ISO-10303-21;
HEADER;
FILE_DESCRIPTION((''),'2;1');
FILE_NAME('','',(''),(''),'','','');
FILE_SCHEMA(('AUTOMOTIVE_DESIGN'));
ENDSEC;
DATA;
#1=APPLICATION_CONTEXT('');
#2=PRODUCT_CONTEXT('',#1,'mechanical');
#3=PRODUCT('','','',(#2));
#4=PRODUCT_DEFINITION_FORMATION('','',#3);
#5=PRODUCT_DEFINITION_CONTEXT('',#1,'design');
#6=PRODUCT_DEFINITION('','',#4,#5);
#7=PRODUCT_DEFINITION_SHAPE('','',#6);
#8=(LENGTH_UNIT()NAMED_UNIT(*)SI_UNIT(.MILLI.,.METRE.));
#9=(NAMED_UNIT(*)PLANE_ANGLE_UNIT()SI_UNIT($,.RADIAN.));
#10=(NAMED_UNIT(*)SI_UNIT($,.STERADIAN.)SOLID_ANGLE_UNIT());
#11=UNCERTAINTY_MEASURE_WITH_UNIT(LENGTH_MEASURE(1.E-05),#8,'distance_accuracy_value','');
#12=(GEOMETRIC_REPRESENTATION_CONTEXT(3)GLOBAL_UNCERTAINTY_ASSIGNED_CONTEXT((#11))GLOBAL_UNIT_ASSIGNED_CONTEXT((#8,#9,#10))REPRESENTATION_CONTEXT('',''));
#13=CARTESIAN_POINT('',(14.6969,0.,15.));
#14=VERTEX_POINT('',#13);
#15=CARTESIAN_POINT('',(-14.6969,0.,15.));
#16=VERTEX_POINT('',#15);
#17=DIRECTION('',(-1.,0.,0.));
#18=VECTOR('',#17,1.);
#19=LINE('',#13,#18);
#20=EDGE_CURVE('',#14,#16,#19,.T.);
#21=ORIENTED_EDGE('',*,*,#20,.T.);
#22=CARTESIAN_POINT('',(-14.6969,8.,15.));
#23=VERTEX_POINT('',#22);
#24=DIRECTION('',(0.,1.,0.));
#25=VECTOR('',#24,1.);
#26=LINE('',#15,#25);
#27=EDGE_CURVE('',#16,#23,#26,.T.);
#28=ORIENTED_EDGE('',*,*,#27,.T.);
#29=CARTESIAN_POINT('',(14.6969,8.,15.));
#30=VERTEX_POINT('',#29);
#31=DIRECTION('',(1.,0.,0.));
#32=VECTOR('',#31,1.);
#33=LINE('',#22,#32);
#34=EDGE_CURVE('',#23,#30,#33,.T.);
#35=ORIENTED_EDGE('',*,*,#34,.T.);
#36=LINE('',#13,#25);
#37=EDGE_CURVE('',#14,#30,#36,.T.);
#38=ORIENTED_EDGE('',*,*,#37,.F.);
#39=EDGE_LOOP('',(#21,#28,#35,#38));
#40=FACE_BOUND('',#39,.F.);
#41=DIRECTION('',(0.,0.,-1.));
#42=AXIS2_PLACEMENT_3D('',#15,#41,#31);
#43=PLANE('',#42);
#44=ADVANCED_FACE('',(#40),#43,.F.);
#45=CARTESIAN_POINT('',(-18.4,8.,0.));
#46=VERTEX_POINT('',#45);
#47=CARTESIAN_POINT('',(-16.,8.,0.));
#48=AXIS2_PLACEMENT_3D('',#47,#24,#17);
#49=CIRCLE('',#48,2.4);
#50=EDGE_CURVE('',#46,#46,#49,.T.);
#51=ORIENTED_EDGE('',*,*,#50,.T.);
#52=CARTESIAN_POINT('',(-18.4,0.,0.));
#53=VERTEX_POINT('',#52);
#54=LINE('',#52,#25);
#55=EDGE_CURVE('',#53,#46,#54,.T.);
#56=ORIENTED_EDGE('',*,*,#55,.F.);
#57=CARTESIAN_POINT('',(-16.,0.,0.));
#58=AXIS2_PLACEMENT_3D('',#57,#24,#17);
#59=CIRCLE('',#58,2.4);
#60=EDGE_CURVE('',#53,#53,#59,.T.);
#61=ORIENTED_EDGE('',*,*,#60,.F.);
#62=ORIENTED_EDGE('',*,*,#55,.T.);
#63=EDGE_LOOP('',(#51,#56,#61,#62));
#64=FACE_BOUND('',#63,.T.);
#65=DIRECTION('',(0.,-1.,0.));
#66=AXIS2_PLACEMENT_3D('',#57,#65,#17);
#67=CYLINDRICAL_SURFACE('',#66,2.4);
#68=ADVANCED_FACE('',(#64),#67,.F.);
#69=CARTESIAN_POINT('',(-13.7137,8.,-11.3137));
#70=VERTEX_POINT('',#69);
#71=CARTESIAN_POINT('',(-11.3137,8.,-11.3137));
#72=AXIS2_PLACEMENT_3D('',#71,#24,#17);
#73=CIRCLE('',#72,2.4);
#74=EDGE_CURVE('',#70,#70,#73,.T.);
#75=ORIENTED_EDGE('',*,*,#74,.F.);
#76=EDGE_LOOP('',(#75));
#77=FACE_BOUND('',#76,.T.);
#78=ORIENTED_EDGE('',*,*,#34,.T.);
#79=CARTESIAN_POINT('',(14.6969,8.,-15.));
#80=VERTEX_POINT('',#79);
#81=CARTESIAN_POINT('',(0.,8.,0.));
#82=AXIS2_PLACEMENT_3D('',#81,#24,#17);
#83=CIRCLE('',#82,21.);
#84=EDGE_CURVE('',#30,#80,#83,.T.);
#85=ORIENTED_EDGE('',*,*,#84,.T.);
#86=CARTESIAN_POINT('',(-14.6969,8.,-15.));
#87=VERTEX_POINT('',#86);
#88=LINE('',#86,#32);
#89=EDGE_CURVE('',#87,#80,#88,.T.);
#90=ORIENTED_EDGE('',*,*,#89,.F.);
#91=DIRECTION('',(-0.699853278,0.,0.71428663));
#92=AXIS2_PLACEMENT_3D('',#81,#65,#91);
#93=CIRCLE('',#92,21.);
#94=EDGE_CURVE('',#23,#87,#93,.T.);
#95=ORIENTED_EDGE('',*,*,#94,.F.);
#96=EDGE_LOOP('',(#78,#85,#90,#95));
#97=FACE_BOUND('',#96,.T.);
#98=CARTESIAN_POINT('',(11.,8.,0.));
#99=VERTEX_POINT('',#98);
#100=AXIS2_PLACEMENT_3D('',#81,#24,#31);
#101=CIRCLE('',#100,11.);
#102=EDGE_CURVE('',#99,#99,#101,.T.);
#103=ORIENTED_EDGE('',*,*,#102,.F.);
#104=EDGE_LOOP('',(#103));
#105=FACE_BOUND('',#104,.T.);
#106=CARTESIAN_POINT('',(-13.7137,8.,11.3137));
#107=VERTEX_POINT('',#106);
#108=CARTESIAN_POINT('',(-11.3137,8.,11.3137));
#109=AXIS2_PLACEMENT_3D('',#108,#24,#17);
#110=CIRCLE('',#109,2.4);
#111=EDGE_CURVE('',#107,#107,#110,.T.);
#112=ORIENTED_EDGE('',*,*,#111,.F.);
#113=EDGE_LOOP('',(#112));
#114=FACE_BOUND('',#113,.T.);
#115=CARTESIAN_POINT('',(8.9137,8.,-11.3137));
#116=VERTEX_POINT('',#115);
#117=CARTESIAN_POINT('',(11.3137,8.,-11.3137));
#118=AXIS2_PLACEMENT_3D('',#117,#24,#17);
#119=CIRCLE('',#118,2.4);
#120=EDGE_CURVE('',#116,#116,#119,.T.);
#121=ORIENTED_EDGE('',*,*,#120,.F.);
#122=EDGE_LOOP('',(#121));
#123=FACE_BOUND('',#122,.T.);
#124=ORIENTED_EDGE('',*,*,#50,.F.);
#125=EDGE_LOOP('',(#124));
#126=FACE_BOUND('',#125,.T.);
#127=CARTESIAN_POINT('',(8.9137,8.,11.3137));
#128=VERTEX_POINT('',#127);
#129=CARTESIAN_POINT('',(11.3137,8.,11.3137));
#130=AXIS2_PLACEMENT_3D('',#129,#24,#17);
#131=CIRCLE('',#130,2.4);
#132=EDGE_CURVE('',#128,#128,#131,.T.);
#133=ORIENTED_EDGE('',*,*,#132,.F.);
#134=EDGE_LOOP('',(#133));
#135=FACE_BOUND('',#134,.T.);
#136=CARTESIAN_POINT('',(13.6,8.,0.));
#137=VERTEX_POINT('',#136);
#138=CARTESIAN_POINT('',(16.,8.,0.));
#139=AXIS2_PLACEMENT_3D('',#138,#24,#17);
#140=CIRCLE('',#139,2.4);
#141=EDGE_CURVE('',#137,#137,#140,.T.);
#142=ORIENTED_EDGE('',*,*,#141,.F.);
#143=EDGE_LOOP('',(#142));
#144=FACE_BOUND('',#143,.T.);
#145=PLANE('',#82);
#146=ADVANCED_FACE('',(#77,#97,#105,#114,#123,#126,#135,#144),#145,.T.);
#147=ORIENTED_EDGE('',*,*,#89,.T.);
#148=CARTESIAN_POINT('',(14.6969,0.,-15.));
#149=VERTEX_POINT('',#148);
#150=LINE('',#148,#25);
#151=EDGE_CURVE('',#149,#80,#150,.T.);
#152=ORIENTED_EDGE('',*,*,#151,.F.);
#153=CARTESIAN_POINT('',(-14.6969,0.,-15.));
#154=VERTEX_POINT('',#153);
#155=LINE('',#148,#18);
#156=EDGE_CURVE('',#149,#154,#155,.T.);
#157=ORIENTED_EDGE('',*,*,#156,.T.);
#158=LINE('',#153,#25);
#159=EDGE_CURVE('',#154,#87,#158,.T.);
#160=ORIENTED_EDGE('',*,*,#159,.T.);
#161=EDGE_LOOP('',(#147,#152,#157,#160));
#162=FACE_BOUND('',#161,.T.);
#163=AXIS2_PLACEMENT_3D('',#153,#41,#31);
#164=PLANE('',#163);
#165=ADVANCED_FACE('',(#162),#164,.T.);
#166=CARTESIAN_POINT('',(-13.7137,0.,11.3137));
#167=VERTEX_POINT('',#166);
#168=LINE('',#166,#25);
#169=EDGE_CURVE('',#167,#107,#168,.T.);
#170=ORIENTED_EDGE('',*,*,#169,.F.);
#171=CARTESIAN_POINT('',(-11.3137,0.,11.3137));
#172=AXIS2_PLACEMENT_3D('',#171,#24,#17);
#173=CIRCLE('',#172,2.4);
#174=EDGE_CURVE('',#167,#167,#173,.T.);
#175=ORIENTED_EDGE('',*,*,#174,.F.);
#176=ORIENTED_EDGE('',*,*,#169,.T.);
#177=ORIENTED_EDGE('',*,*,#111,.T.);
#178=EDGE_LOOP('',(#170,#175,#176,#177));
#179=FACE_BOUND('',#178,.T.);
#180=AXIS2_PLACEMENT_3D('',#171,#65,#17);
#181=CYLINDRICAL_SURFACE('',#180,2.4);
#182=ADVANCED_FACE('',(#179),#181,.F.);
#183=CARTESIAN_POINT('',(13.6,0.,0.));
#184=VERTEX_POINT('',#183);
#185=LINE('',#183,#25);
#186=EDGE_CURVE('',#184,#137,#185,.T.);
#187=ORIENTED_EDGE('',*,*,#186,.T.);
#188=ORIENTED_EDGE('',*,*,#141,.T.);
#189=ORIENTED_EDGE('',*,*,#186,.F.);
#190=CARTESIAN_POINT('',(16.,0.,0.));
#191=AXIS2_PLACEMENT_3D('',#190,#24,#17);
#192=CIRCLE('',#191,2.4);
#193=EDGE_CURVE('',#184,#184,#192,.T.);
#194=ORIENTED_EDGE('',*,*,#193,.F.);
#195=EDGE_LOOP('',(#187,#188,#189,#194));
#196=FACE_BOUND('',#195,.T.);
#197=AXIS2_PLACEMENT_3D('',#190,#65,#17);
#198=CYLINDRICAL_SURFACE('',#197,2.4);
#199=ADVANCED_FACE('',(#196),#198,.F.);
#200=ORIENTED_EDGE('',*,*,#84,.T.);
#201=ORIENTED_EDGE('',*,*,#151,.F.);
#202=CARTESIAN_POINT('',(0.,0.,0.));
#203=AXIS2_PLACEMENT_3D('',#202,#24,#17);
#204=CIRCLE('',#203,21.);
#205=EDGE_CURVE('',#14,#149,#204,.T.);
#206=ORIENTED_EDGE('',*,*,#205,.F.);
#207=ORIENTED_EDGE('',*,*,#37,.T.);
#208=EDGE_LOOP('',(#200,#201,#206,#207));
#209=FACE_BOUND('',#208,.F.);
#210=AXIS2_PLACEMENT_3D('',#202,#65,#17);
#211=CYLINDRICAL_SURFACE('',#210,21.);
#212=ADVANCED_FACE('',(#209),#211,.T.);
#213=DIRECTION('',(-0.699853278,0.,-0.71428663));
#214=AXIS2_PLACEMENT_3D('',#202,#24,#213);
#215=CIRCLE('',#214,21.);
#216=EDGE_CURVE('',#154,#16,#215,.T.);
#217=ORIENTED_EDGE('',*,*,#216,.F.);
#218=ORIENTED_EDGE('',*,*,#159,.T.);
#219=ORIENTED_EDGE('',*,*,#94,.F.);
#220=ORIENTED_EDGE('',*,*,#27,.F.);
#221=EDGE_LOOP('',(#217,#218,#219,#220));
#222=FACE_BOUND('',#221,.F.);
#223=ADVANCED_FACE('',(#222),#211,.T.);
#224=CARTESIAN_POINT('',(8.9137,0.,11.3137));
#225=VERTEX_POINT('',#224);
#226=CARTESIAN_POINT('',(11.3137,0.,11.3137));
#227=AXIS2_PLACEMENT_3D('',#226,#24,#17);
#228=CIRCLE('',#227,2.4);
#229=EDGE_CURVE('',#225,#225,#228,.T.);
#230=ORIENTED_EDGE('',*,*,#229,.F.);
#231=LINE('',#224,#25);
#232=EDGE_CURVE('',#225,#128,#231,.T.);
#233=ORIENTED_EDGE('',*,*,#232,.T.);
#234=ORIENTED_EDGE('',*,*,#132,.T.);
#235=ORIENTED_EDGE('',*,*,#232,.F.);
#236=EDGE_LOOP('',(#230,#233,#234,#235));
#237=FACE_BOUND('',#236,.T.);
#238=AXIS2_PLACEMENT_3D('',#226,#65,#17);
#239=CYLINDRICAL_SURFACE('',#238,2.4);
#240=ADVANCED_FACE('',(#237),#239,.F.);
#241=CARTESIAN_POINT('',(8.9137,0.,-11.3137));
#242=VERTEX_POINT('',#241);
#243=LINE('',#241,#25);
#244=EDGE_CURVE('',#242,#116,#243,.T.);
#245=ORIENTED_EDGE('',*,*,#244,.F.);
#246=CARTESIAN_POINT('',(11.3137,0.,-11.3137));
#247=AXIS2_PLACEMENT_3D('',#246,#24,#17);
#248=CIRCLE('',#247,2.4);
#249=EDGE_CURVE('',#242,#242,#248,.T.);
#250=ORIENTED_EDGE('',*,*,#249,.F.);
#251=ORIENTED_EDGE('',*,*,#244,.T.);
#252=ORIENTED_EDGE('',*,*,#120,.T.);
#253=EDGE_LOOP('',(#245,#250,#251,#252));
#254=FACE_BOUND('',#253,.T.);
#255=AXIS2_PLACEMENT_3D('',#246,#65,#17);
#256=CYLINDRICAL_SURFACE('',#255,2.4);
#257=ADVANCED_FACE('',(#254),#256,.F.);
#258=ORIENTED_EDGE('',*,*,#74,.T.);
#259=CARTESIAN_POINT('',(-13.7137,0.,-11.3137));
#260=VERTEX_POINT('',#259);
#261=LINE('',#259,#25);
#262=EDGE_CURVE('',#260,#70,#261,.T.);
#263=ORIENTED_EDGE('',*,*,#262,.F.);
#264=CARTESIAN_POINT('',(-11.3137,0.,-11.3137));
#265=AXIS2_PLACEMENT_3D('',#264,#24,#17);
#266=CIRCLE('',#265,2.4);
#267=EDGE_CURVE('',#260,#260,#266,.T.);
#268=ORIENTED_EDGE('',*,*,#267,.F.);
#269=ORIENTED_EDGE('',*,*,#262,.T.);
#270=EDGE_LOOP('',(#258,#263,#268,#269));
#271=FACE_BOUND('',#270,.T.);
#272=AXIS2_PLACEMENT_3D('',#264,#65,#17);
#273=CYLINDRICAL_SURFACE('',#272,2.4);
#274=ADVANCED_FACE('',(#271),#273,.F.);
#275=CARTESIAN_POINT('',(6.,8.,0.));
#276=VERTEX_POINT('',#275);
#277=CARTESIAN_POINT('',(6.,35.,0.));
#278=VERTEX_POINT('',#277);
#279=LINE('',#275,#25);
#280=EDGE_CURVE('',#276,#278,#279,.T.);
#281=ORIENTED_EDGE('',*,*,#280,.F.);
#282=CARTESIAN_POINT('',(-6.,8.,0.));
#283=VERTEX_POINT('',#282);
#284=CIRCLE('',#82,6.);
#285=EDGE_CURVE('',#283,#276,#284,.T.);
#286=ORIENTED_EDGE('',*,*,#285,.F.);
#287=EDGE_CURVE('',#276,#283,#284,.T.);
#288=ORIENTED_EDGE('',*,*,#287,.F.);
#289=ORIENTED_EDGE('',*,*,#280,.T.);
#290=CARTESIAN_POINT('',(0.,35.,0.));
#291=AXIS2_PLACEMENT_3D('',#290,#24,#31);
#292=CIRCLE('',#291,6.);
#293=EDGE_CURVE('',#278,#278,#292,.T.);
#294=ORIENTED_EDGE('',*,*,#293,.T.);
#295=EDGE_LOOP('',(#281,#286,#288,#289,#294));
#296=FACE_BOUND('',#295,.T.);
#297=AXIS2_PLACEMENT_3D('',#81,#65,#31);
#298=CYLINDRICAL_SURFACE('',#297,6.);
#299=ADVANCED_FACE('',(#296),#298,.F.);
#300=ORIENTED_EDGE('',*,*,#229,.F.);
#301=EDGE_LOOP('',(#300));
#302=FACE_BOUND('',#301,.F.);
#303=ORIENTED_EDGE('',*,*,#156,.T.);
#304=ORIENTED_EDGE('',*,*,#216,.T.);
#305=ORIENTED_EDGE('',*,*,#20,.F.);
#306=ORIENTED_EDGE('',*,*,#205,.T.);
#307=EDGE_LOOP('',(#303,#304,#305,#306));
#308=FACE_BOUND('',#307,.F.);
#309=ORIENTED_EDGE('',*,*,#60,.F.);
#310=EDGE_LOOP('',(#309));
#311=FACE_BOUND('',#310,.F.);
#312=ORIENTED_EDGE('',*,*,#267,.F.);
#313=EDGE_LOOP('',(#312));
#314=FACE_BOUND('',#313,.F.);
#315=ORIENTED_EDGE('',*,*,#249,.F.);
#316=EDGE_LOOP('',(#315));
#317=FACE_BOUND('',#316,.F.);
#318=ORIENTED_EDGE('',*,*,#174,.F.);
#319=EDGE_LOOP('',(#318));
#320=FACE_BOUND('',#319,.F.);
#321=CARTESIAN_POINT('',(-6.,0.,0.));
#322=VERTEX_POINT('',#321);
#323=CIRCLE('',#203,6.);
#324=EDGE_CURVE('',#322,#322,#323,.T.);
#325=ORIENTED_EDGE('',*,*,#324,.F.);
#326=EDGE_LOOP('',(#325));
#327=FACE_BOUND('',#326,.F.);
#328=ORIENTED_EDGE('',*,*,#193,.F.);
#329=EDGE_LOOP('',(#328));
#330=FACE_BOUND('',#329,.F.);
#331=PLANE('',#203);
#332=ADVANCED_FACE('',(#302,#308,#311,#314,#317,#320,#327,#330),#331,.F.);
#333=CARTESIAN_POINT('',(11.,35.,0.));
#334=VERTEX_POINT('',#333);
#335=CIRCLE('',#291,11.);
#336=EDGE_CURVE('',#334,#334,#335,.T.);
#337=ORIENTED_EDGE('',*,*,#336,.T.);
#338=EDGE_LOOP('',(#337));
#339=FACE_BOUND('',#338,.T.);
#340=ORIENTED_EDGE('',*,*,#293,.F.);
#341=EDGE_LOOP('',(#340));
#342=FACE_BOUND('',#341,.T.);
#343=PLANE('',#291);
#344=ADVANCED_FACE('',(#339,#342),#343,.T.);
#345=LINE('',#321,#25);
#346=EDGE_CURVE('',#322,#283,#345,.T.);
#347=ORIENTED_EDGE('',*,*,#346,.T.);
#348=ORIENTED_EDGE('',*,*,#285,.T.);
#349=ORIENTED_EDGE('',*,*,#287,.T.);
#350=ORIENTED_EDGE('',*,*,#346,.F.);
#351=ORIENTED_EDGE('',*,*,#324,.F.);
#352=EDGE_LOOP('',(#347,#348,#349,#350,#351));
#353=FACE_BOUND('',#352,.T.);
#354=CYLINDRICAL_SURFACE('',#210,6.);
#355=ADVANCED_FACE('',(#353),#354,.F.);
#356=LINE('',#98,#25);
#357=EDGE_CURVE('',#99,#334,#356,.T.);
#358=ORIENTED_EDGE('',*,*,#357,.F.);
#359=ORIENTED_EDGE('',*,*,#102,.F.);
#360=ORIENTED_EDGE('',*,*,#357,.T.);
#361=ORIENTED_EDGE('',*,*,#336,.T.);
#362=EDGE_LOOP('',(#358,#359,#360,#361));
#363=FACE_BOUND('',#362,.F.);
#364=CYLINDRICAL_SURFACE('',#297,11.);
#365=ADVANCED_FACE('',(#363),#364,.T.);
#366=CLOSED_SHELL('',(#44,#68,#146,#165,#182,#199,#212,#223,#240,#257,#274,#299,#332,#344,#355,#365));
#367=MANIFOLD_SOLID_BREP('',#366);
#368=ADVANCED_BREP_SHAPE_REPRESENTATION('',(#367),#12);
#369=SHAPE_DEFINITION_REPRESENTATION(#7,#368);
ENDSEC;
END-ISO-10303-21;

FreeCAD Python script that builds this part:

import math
import FreeCAD as App
import Part
import Sketcher

V = App.Vector
Q = App.Units.Quantity

doc = App.newDocument("Part")
body = doc.addObject("PartDesign::Body", "Body")

# Sketch on XZ plane
sketch1 = body.newObject("Sketcher::SketchObject", "Sketch")
sketch1.AttachmentSupport = (doc.getObject("XZ_Plane"), [""])
sketch1.MapMode = "FlatFace"
sketch1.addGeometry([
    Part.ArcOfCircle(Part.Circle(V(0, 0, 0), V(0, 0, 1), 21), math.radians(134), math.radians(226)),  # 0
    Part.LineSegment(V(-14.7, 15, 0), V(14.7, 15, 0)),  # 1
    Part.ArcOfCircle(Part.Circle(V(0, 0, 0), V(0, 0, 1), 21), math.radians(-46), math.radians(46)),  # 2
    Part.LineSegment(V(14.7, -15, 0), V(-14.7, -15, 0)),  # 3
    Part.Circle(V(11.3, -11.3, 0), V(0, 0, 1), 2.4),  # 4
    Part.Circle(V(-11.3, -11.3, 0), V(0, 0, 1), 2.4),  # 5
    Part.Circle(V(16, 0, 0), V(0, 0, 1), 2.4),  # 6
    Part.Circle(V(11.3, 11.3, 0), V(0, 0, 1), 2.4),  # 7
    Part.Circle(V(0, 0, 0), V(0, 0, 1), 6),  # 8
    Part.Circle(V(-16, 0, 0), V(0, 0, 1), 2.4),  # 9
    Part.Circle(V(-11.3, 11.3, 0), V(0, 0, 1), 2.4),  # 10
], False)
sketch1.addConstraint([
    Sketcher.Constraint("Coincident", 0, 1, 1, 1),
    Sketcher.Constraint("Coincident", 1, 2, 2, 2),
    Sketcher.Constraint("Coincident", 2, 1, 3, 1),
    Sketcher.Constraint("Coincident", 3, 2, 0, 2),
    Sketcher.Constraint("Horizontal", 1),
    Sketcher.Constraint("Horizontal", 3),
    Sketcher.Constraint("Coincident", 0, 3, -1, 1),
    Sketcher.Constraint("Coincident", 2, 3, -1, 1),
    Sketcher.Constraint("Coincident", 8, 3, -1, 1),
    Sketcher.Constraint("Equal", 0, 2),
    Sketcher.Constraint("Equal", 4, 5),
    Sketcher.Constraint("Equal", 5, 6),
    Sketcher.Constraint("Equal", 6, 7),
    Sketcher.Constraint("Equal", 7, 9),
    Sketcher.Constraint("Equal", 9, 10),
    Sketcher.Constraint("Symmetric", 5, 3, 7, 3, -1, 1),
    Sketcher.Constraint("Symmetric", 6, 3, 9, 3, -1, 1),
    Sketcher.Constraint("Symmetric", 4, 3, 10, 3, -1, 1),
    Sketcher.Constraint("Symmetric", 4, 3, 5, 3, -2),
    Sketcher.Constraint("PointOnObject", 6, 3, -1),
    Sketcher.Constraint("Vertical", 1, 2, 2, 1),
    Sketcher.Constraint("Diameter", 8, Q("12 mm")),
    Sketcher.Constraint("Radius", 0, Q("21 mm")),
    Sketcher.Constraint("Diameter", 4, Q("4.8 mm")),
    Sketcher.Constraint("DistanceX", -1, 1, 6, 3, Q("16 mm")),
    Sketcher.Constraint("DistanceY", -1, 1, 0, 1, Q("15 mm")),
    Sketcher.Constraint("DistanceX", -1, 1, 4, 3, Q("11.3137 mm")),
    Sketcher.Constraint("DistanceY", 4, 3, -1, 1, Q("11.3137 mm")),
])
pad1 = body.newObject("PartDesign::Pad", "Pad")
pad1.Profile = sketch1
pad1.Length = 8
pad1.Reversed = True

# Sketch on XZ plane
sketch2 = body.newObject("Sketcher::SketchObject", "Sketch001")
sketch2.AttachmentSupport = (doc.getObject("XZ_Plane"), [""])
sketch2.MapMode = "FlatFace"
sketch2.AttachmentOffset = App.Placement(V(0, 0, -8), App.Rotation())
sketch2.addGeometry([
    Part.Circle(V(0, 0, 0), V(0, 0, 1), 11),
    Part.Circle(V(0, 0, 0), V(0, 0, 1), 6),
], False)
sketch2.addConstraint([
    Sketcher.Constraint("Coincident", 0, 3, -1, 1),
    Sketcher.Constraint("Coincident", 1, 3, -1, 1),
    Sketcher.Constraint("Diameter", 0, Q("22 mm")),
    Sketcher.Constraint("Diameter", 1, Q("12 mm")),
])
pad2 = body.newObject("PartDesign::Pad", "Pad001")
pad2.Profile = sketch2
pad2.Length = 27
pad2.Reversed = True

doc.recompute()
